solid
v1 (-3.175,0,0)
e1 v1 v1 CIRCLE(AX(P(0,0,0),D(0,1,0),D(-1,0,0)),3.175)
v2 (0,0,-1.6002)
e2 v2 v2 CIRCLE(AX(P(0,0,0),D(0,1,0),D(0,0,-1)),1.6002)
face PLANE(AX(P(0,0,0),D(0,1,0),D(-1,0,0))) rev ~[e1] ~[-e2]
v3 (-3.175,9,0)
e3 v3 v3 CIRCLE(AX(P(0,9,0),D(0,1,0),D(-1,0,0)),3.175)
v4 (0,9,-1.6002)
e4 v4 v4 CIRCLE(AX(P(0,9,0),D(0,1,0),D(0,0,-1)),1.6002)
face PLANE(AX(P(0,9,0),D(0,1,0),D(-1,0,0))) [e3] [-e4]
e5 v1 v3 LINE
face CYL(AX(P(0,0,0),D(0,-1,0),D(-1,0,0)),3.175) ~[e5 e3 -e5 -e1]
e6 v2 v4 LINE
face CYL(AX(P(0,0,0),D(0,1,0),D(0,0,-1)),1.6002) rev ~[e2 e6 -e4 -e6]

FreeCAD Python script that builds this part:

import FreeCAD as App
import Part
import Sketcher

V = App.Vector
Q = App.Units.Quantity

doc = App.newDocument("Part")
body = doc.addObject("PartDesign::Body", "Body")

# Sketch on XZ plane
sketch1 = doc.addObject("Sketcher::SketchObject", "Sketch")
body.addObject(sketch1)
sketch1.AttachmentSupport = (doc.XZ_Plane, [""])
sketch1.MapMode = "FlatFace"
sketch1.addGeometry(Part.Circle(V(0, 0, 0), V(0, 0, 1), 3.2), False)
sketch1.addConstraint([
    Sketcher.Constraint("Coincident", 0, 3, -1, 1),
    Sketcher.Constraint("Diameter", 0, Q("0.25 in")),
])
pad1 = doc.addObject("PartDesign::Pad", "Pad")
body.addObject(pad1)
pad1.Profile = sketch1
pad1.Length = 9
pad1.Reversed = True

# Sketch on XZ plane
sketch2 = doc.addObject("Sketcher::SketchObject", "Sketch001")
body.addObject(sketch2)
sketch2.AttachmentSupport = (doc.XZ_Plane, [""])
sketch2.MapMode = "FlatFace"
sketch2.addGeometry(Part.Circle(V(0, 0, 0), V(0, 0, 1), 1.6), False)
sketch2.addConstraint([
    Sketcher.Constraint("Coincident", 0, 3, -1, 1),
    Sketcher.Constraint("Diameter", 0, Q("0.126 in")),
])
doc.recompute()
hole = doc.addObject("PartDesign::Hole", "Hole")
body.addObject(hole)
hole.Profile = sketch2
hole.ThreadType = "None"
hole.Diameter = Q("0.126 in")
hole.DepthType = "ThroughAll"

doc.recompute()
